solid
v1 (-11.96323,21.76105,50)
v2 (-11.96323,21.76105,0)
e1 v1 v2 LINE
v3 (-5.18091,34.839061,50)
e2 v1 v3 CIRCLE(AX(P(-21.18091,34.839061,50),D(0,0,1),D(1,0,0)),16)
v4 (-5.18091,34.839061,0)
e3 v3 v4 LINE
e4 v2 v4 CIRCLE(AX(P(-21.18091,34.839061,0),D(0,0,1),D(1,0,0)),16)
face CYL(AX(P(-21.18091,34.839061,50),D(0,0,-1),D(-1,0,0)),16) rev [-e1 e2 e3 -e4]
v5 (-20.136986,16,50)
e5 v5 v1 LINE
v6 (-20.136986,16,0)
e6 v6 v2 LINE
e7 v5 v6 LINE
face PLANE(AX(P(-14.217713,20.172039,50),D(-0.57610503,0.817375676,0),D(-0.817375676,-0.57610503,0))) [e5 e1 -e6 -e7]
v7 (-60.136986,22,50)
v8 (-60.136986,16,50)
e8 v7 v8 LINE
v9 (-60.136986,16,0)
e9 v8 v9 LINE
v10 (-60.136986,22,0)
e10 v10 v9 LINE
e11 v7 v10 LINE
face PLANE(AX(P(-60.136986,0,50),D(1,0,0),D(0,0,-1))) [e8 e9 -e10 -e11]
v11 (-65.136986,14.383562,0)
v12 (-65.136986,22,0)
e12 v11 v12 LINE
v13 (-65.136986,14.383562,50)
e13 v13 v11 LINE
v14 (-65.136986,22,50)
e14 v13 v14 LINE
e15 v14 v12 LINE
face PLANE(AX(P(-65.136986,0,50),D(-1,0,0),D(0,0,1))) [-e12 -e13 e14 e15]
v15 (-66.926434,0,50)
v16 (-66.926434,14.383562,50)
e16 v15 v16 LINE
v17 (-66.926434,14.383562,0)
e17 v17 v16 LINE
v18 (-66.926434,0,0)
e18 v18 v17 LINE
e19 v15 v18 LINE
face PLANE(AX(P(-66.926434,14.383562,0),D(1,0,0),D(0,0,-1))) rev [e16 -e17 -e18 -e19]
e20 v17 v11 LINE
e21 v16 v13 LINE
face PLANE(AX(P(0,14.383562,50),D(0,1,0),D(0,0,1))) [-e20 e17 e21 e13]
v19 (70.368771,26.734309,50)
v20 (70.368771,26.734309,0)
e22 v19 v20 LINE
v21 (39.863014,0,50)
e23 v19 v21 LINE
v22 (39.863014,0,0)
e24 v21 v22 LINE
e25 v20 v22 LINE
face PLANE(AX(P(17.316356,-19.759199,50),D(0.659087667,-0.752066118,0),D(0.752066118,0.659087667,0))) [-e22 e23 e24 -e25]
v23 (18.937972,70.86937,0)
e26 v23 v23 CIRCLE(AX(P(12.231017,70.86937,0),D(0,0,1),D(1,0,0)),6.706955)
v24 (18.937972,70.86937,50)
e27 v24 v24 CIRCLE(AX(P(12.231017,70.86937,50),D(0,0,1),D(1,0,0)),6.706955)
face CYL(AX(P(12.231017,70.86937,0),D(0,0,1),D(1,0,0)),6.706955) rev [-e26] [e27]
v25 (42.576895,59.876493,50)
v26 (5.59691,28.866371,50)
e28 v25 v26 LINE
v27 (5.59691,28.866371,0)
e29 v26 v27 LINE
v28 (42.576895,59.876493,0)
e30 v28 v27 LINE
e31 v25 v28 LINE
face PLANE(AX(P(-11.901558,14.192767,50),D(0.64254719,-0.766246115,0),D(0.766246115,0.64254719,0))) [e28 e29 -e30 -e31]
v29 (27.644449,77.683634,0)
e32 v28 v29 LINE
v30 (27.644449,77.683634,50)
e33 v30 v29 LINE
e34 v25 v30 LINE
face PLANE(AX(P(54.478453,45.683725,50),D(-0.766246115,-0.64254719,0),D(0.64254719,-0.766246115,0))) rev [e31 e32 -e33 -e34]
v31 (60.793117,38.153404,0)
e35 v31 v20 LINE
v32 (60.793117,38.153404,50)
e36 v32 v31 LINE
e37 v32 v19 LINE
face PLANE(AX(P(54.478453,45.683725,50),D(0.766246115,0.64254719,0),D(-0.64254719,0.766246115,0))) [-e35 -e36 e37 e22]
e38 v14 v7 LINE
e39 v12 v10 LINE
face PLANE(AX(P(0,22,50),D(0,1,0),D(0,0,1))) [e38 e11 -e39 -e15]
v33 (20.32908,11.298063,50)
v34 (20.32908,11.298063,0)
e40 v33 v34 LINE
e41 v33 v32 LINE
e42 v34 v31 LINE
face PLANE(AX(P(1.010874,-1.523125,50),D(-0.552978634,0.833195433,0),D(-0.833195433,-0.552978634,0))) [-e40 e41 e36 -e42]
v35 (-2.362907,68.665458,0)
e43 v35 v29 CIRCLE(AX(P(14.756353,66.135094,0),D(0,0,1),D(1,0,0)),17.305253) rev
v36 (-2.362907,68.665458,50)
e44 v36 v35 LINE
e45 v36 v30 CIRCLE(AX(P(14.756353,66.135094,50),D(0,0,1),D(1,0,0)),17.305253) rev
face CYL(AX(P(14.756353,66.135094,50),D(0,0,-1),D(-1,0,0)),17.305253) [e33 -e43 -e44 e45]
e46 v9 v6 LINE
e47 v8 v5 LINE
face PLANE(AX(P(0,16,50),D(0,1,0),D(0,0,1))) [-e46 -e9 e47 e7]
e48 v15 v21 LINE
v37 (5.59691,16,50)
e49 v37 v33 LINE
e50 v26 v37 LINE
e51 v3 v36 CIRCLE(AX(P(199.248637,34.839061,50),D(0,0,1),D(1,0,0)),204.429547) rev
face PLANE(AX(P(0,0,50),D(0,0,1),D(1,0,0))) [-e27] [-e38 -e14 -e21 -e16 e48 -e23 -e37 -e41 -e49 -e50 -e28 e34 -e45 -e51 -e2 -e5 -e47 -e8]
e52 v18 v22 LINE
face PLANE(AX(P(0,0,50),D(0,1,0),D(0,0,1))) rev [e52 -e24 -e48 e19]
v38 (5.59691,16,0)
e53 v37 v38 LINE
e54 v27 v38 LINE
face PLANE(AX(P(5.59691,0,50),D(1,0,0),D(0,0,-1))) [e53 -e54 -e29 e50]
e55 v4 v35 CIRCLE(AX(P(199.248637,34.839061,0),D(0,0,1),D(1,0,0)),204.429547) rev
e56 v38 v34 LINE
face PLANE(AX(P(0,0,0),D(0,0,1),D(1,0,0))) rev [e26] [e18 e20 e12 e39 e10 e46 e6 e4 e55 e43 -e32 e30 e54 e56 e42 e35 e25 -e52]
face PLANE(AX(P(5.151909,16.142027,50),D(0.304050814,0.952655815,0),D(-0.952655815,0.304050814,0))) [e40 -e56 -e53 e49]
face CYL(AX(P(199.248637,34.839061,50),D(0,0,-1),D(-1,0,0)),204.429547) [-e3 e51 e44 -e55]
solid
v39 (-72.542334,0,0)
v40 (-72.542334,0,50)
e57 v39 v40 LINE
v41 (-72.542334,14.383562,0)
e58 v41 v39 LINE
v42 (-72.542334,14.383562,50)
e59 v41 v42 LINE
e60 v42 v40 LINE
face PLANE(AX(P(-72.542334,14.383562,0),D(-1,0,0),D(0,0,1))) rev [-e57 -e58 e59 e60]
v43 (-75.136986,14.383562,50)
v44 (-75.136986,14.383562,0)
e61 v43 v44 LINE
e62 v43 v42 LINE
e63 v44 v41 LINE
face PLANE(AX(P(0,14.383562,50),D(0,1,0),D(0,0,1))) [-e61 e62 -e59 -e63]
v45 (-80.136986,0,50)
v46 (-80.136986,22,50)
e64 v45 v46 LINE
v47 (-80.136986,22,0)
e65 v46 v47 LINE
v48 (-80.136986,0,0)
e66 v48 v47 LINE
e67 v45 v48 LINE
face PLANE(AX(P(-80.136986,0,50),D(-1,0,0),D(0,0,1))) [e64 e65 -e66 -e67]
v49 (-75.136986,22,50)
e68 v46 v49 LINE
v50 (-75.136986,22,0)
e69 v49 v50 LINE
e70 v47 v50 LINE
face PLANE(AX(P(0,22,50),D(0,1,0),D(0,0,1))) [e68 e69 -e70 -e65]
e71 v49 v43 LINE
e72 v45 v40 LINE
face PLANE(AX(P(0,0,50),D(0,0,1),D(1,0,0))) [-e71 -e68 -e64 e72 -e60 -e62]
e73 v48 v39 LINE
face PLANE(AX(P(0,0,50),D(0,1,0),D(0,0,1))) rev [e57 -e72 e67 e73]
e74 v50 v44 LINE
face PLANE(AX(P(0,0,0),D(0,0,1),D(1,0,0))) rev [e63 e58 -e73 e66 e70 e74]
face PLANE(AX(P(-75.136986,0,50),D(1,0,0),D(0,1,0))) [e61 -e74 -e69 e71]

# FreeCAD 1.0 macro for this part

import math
import FreeCAD as App
import Part
import Sketcher

V = App.Vector


def add_polygon(sketch, points):
    """Adds a closed chain of lines whose ends are joined by coincident constraints."""
    first, n = sketch.GeometryCount, len(points)
    for a, b in zip(points, points[1:] + points[:1]):
        sketch.addGeometry(Part.LineSegment(App.Vector(*a, 0), App.Vector(*b, 0)), False)
    for i in range(n):
        sketch.addConstraint(Sketcher.Constraint("Coincident", first + i, 2, first + (i + 1) % n, 1))

doc = App.newDocument("Part")
body = doc.addObject("PartDesign::Body", "Body")
body.AllowCompound = True

# Sketch on XY plane
sketch1 = doc.addObject("Sketcher::SketchObject", "Sketch")
body.addObject(sketch1)
sketch1.AttachmentSupport = (doc.XY_Plane, [""])
sketch1.MapMode = "FlatFace"
sketch1.addGeometry([
    Part.LineSegment(V(-80.136986, 22, 0), V(-80.136986, 0, 0)),  # 0
    Part.LineSegment(V(-80.136986, 0, 0), V(39.863014, 0, 0)),  # 1
    Part.LineSegment(V(39.863014, 0, 0), V(70.368771, 26.734309, 0)),  # 2
    Part.LineSegment(V(70.368771, 26.734309, 0), V(60.793117, 38.153404, 0)),  # 3
    Part.LineSegment(V(60.793117, 38.153404, 0), V(20.32908, 11.298063, 0)),  # 4
    Part.LineSegment(V(20.32908, 11.298063, 0), V(5.59691, 16, 0)),  # 5
    Part.LineSegment(V(5.59691, 16, 0), V(5.59691, 28.866371, 0)),  # 6
    Part.LineSegment(V(5.59691, 28.866371, 0), V(42.576895, 59.876493, 0)),  # 7
    Part.LineSegment(V(42.576895, 59.876493, 0), V(28.374144, 76.813464, 0)),  # 8
    Part.LineSegment(V(28.374144, 76.813464, 0), V(27.644449, 77.683634, 0)),  # 9
    Part.ArcOfCircle(Part.Circle(V(14.756353, 66.135094, 0), V(0, 0, 1), 17.305253), math.radians(41.862328), math.radians(171.592103)),  # 10
    Part.ArcOfCircle(Part.Circle(V(199.248637, 34.839061, 0), V(0, 0, 1), 204.429547), math.radians(170.475621), math.radians(180)),  # 11
    Part.ArcOfCircle(Part.Circle(V(-21.18091, 34.839061, 0), V(0, 0, 1), 16), math.radians(-54.822945), math.radians(0)),  # 12
    Part.LineSegment(V(-11.96323, 21.76105, 0), V(-20.136986, 16, 0)),  # 13
    Part.LineSegment(V(-20.136986, 16, 0), V(-60.136986, 16, 0)),  # 14
    Part.LineSegment(V(-60.136986, 16, 0), V(-60.136986, 22, 0)),  # 15
    Part.LineSegment(V(-60.136986, 22, 0), V(-65.136986, 22, 0)),  # 16
    Part.LineSegment(V(-65.136986, 22, 0), V(-65.136986, 14.383562, 0)),  # 17
    Part.LineSegment(V(-65.136986, 14.383562, 0), V(-75.136986, 14.383562, 0)),  # 18
    Part.LineSegment(V(-75.136986, 14.383562, 0), V(-75.136986, 22, 0)),  # 19
    Part.LineSegment(V(-75.136986, 22, 0), V(-80.136986, 22, 0)),  # 20
], False)
sketch1.addConstraint([
    Sketcher.Constraint("Coincident", 0, 2, 1, 1),
    Sketcher.Constraint("Coincident", 1, 2, 2, 1),
    Sketcher.Constraint("Coincident", 2, 2, 3, 1),
    Sketcher.Constraint("Coincident", 3, 2, 4, 1),
    Sketcher.Constraint("Coincident", 4, 2, 5, 1),
    Sketcher.Constraint("Coincident", 5, 2, 6, 1),
    Sketcher.Constraint("Coincident", 6, 2, 7, 1),
    Sketcher.Constraint("Coincident", 7, 2, 8, 1),
    Sketcher.Constraint("Coincident", 8, 2, 9, 1),
    Sketcher.Constraint("Coincident", 9, 2, 10, 1),
    Sketcher.Constraint("Coincident", 10, 2, 11, 1),
    Sketcher.Constraint("Coincident", 11, 2, 12, 2),
    Sketcher.Constraint("Coincident", 12, 1, 13, 1),
    Sketcher.Constraint("Coincident", 13, 2, 14, 1),
    Sketcher.Constraint("Coincident", 14, 2, 15, 1),
    Sketcher.Constraint("Coincident", 15, 2, 16, 1),
    Sketcher.Constraint("Coincident", 16, 2, 17, 1),
    Sketcher.Constraint("Coincident", 17, 2, 18, 1),
    Sketcher.Constraint("Coincident", 18, 2, 19, 1),
    Sketcher.Constraint("Coincident", 19, 2, 20, 1),
    Sketcher.Constraint("Coincident", 20, 2, 0, 1),
    Sketcher.Constraint("Vertical", 0),
    Sketcher.Constraint("Horizontal", 1),
    Sketcher.Constraint("Vertical", 6),
    Sketcher.Constraint("Horizontal", 14),
    Sketcher.Constraint("Vertical", 15),
    Sketcher.Constraint("Horizontal", 16),
    Sketcher.Constraint("Vertical", 17),
    Sketcher.Constraint("Horizontal", 18),
    Sketcher.Constraint("Vertical", 19),
    Sketcher.Constraint("Horizontal", 20),
    Sketcher.Constraint("PointOnObject", 0, 2, -1),
    Sketcher.Constraint("Radius", 12, 16.0),
    Sketcher.Constraint("DistanceX", 1, 1, 1, 2, 120.0),
    Sketcher.Constraint("DistanceX", 14, 2, 14, 1, 40.0),
    Sketcher.Constraint("DistanceX", 16, 2, 16, 1, 5.0),
    Sketcher.Constraint("DistanceX", 18, 2, 18, 1, 10.0),
    Sketcher.Constraint("DistanceX", 20, 2, 20, 1, 5.0),
    Sketcher.Constraint("DistanceY", 0, 2, 0, 1, 22.0),
    Sketcher.Constraint("DistanceY", 15, 1, 15, 2, 6.0),
    Sketcher.Constraint("Distance", 13, 10.0),
    Sketcher.Constraint("DistanceY", -1, 1, 5, 2, 16.0),
    Sketcher.Constraint("DistanceY", -1, 1, 13, 2, 16.0),
    Sketcher.Constraint("Radius", 10, 17.305253),
    Sketcher.Constraint("Radius", 11, 204.429547),
    Sketcher.Constraint("DistanceY", 4, 2, 12, 3, 23.540999),
    Sketcher.Constraint("DistanceY", 4, 2, 11, 2, 23.540999),
    Sketcher.Constraint("Distance", 2, 40.5626),
    Sketcher.Constraint("DistanceY", 6, 1, 6, 2, 12.866371),
    Sketcher.Constraint("DistanceY", 17, 2, 17, 1, 7.616438),
    Sketcher.Constraint("DistanceY", 7, 2, 10, 3, 6.258602),
    Sketcher.Constraint("Distance", 4, 48.564881),
    Sketcher.Constraint("Distance", 9, 1.135628),
    Sketcher.Constraint("DistanceY", -1, 1, 11, 3, 34.839061),
    Sketcher.Constraint("DistanceX", 12, 3, -1, 1, 21.18091),
    Sketcher.Constraint("DistanceY", -1, 1, 12, 3, 34.839061),
    Sketcher.Constraint("DistanceX", -1, 1, 2, 2, 70.368771),
    Sketcher.Constraint("DistanceY", -1, 1, 2, 2, 26.734309),
    Sketcher.Constraint("DistanceX", -1, 1, 4, 2, 20.32908),
    Sketcher.Constraint("DistanceX", -1, 1, 5, 2, 5.59691),
    Sketcher.Constraint("DistanceX", -1, 1, 9, 2, 27.644449),
    Sketcher.Constraint("DistanceX", 0, 2, 10, 3, 94.893339),
    Sketcher.Constraint("DistanceY", 3, 2, 10, 3, 27.98169),
    Sketcher.Constraint("DistanceX", 3, 2, 11, 3, 138.45552),
    Sketcher.Constraint("DistanceX", 10, 3, 7, 2, 27.820542),
    Sketcher.Constraint("DistanceX", 10, 3, 8, 2, 13.617791),
])
pad1 = doc.addObject("PartDesign::Pad", "Pad")
body.addObject(pad1)
pad1.Profile = sketch1
pad1.Length = 50

# Sketch on XY plane
sketch2 = doc.addObject("Sketcher::SketchObject", "Sketch001")
body.addObject(sketch2)
sketch2.AttachmentSupport = (doc.XY_Plane, [""])
sketch2.MapMode = "FlatFace"
sketch2.AttachmentOffset = App.Placement(V(0, 0, 50), App.Rotation())
sketch2.addGeometry(Part.Circle(V(12, 71, 0), V(0, 0, 1), 7), False)
sketch2.addConstraint([
    Sketcher.Constraint("Diameter", 0, 13.413911),
    Sketcher.Constraint("DistanceY", -1, 1, 0, 3, 70.86937),
    Sketcher.Constraint("DistanceX", -1, 1, 0, 3, 12.231017),
])
pocket1 = doc.addObject("PartDesign::Pocket", "Pocket")
body.addObject(pocket1)
pocket1.Profile = sketch2
pocket1.Length = 50

# Sketch on XY plane
sketch3 = doc.addObject("Sketcher::SketchObject", "Sketch002")
body.addObject(sketch3)
sketch3.AttachmentSupport = (doc.XY_Plane, [""])
sketch3.MapMode = "FlatFace"
sketch3.AttachmentOffset = App.Placement(V(0, 0, 50), App.Rotation())
add_polygon(sketch3, [(-73, 14), (-73, -3), (-67, -3), (-67, 14)])  # lines 0-3
sketch3.addConstraint([
    Sketcher.Constraint("Vertical", 0),
    Sketcher.Constraint("Horizontal", 1),
    Sketcher.Constraint("Vertical", 2),
    Sketcher.Constraint("Horizontal", 3),
    Sketcher.Constraint("DistanceX", 1, 1, 1, 2, 5.6159),
    Sketcher.Constraint("DistanceY", 0, 2, 0, 1, 17.858013),
    Sketcher.Constraint("DistanceY", 0, 2, -1, 1, 3.474452),
    Sketcher.Constraint("DistanceX", 0, 2, -1, 1, 72.542334),
])
pocket2 = doc.addObject("PartDesign::Pocket", "Pocket001")
body.addObject(pocket2)
pocket2.Profile = sketch3
pocket2.Length = 50

doc.recompute()
